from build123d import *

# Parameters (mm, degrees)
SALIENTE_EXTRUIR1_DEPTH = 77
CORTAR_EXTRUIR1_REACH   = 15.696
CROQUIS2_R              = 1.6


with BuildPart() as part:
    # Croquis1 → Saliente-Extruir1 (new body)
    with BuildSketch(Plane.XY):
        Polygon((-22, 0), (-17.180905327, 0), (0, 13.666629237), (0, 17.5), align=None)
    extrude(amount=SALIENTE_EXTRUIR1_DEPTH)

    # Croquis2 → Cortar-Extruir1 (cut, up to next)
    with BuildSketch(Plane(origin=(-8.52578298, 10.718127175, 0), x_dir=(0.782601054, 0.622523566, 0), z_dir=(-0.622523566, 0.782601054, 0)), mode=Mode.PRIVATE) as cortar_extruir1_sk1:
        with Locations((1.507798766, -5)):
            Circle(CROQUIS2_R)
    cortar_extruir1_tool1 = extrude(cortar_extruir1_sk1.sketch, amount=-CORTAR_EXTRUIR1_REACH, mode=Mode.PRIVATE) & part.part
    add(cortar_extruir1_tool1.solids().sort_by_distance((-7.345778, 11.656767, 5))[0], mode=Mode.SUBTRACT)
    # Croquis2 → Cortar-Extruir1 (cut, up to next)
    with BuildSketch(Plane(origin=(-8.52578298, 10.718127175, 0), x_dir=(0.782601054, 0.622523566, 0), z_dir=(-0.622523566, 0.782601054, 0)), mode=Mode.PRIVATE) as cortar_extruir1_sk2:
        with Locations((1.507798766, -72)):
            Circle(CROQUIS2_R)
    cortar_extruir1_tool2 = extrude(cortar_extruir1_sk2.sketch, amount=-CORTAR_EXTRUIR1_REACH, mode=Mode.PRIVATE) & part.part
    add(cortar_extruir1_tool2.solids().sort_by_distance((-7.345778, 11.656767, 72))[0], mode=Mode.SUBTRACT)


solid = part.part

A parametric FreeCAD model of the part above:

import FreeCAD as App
import Part
import Sketcher
from FreeCAD import Vector


def add_polygon(sketch, points):
    """Adds a closed chain of lines whose ends are joined by coincident constraints."""
    first, n = sketch.GeometryCount, len(points)
    for a, b in zip(points, points[1:] + points[:1]):
        sketch.addGeometry(Part.LineSegment(App.Vector(*a, 0), App.Vector(*b, 0)), False)
    for i in range(n):
        sketch.addConstraint(Sketcher.Constraint("Coincident", first + i, 2, first + (i + 1) % n, 1))

doc = App.newDocument("Part")
params = doc.addObject("Spreadsheet::Sheet", "Params")
for row, (alias, value) in enumerate([
    ("pad1_length", "77 mm"),
    ("sketch2_diameter", "3.2 mm"),
    ("sketch3_diameter", "3.2 mm"),
], start=1):
    params.set(f"A{row}", alias)
    params.set(f"B{row}", "=" + value)
    params.setAlias(f"B{row}", alias)

body = doc.addObject("PartDesign::Body", "Body")

sketch1 = body.newObject("Sketcher::SketchObject", "Sketch")
sketch1.AttachmentSupport = (doc.getObject("XY_Plane"), [""])
sketch1.MapMode = "FlatFace"
add_polygon(sketch1, [(-22, 0), (-17.2, 0), (0, 13.7), (0, 17.5)])
sketch1.addConstraint([
    Sketcher.Constraint("Horizontal", 0),
    Sketcher.Constraint("Vertical", 2),
    Sketcher.Constraint("PointOnObject", 0, 2, -1),
    Sketcher.Constraint("PointOnObject", 1, 2, -2),
    Sketcher.Constraint("Parallel", 1, 3),
    Sketcher.Constraint("DistanceX", 3, 2, -1, 1, 22.0),
    Sketcher.Constraint("DistanceY", -1, 1, 2, 2, 17.5),
    Sketcher.Constraint("DistanceY", 2, 1, 2, 2, 3.833371),
])
pad1 = body.newObject("PartDesign::Pad", "Pad")
pad1.Profile = sketch1
pad1.setExpression("Length", "Params.pad1_length")

sketch2 = body.newObject("Sketcher::SketchObject", "Sketch001")
sketch2.Placement = App.Placement(Vector(-8.525783, 10.718127, 0), App.Rotation(Vector(0.782601054, 0.622523566, 0), Vector(0, 0, -1), Vector(-0.622523566, 0.782601054, 0), "ZXY"))
sketch2.addGeometry(Part.Circle(Vector(1.5, -5, 0), Vector(0, 0, 1), 1.6), False)
sketch2.addConstraint([
    Sketcher.Constraint("Diameter", 0, 3.2),
    Sketcher.Constraint("DistanceY", 0, 3, -1, 1, 5.0),
    Sketcher.Constraint("DistanceX", -1, 1, 0, 3, 1.507799),
])
sketch2.setExpression("Constraints[0]", "Params.sketch2_diameter")
pocket1 = body.newObject("PartDesign::Pocket", "Pocket")
pocket1.Profile = sketch2
pocket1.Type = "UpToFirst"

sketch3 = body.newObject("Sketcher::SketchObject", "Sketch002")
sketch3.Placement = App.Placement(Vector(-8.525783, 10.718127, 0), App.Rotation(Vector(0.782601054, 0.622523566, 0), Vector(0, 0, -1), Vector(-0.622523566, 0.782601054, 0), "ZXY"))
sketch3.addGeometry(Part.Circle(Vector(1.5, -72, 0), Vector(0, 0, 1), 1.6), False)
sketch3.addConstraint([
    Sketcher.Constraint("Diameter", 0, 3.2),
    Sketcher.Constraint("DistanceY", 0, 3, -1, 1, 72.0),
    Sketcher.Constraint("DistanceX", -1, 1, 0, 3, 1.507799),
])
sketch3.setExpression("Constraints[0]", "Params.sketch3_diameter")
pocket2 = body.newObject("PartDesign::Pocket", "Pocket001")
pocket2.Profile = sketch3
pocket2.Type = "UpToFirst"

doc.recompute()
